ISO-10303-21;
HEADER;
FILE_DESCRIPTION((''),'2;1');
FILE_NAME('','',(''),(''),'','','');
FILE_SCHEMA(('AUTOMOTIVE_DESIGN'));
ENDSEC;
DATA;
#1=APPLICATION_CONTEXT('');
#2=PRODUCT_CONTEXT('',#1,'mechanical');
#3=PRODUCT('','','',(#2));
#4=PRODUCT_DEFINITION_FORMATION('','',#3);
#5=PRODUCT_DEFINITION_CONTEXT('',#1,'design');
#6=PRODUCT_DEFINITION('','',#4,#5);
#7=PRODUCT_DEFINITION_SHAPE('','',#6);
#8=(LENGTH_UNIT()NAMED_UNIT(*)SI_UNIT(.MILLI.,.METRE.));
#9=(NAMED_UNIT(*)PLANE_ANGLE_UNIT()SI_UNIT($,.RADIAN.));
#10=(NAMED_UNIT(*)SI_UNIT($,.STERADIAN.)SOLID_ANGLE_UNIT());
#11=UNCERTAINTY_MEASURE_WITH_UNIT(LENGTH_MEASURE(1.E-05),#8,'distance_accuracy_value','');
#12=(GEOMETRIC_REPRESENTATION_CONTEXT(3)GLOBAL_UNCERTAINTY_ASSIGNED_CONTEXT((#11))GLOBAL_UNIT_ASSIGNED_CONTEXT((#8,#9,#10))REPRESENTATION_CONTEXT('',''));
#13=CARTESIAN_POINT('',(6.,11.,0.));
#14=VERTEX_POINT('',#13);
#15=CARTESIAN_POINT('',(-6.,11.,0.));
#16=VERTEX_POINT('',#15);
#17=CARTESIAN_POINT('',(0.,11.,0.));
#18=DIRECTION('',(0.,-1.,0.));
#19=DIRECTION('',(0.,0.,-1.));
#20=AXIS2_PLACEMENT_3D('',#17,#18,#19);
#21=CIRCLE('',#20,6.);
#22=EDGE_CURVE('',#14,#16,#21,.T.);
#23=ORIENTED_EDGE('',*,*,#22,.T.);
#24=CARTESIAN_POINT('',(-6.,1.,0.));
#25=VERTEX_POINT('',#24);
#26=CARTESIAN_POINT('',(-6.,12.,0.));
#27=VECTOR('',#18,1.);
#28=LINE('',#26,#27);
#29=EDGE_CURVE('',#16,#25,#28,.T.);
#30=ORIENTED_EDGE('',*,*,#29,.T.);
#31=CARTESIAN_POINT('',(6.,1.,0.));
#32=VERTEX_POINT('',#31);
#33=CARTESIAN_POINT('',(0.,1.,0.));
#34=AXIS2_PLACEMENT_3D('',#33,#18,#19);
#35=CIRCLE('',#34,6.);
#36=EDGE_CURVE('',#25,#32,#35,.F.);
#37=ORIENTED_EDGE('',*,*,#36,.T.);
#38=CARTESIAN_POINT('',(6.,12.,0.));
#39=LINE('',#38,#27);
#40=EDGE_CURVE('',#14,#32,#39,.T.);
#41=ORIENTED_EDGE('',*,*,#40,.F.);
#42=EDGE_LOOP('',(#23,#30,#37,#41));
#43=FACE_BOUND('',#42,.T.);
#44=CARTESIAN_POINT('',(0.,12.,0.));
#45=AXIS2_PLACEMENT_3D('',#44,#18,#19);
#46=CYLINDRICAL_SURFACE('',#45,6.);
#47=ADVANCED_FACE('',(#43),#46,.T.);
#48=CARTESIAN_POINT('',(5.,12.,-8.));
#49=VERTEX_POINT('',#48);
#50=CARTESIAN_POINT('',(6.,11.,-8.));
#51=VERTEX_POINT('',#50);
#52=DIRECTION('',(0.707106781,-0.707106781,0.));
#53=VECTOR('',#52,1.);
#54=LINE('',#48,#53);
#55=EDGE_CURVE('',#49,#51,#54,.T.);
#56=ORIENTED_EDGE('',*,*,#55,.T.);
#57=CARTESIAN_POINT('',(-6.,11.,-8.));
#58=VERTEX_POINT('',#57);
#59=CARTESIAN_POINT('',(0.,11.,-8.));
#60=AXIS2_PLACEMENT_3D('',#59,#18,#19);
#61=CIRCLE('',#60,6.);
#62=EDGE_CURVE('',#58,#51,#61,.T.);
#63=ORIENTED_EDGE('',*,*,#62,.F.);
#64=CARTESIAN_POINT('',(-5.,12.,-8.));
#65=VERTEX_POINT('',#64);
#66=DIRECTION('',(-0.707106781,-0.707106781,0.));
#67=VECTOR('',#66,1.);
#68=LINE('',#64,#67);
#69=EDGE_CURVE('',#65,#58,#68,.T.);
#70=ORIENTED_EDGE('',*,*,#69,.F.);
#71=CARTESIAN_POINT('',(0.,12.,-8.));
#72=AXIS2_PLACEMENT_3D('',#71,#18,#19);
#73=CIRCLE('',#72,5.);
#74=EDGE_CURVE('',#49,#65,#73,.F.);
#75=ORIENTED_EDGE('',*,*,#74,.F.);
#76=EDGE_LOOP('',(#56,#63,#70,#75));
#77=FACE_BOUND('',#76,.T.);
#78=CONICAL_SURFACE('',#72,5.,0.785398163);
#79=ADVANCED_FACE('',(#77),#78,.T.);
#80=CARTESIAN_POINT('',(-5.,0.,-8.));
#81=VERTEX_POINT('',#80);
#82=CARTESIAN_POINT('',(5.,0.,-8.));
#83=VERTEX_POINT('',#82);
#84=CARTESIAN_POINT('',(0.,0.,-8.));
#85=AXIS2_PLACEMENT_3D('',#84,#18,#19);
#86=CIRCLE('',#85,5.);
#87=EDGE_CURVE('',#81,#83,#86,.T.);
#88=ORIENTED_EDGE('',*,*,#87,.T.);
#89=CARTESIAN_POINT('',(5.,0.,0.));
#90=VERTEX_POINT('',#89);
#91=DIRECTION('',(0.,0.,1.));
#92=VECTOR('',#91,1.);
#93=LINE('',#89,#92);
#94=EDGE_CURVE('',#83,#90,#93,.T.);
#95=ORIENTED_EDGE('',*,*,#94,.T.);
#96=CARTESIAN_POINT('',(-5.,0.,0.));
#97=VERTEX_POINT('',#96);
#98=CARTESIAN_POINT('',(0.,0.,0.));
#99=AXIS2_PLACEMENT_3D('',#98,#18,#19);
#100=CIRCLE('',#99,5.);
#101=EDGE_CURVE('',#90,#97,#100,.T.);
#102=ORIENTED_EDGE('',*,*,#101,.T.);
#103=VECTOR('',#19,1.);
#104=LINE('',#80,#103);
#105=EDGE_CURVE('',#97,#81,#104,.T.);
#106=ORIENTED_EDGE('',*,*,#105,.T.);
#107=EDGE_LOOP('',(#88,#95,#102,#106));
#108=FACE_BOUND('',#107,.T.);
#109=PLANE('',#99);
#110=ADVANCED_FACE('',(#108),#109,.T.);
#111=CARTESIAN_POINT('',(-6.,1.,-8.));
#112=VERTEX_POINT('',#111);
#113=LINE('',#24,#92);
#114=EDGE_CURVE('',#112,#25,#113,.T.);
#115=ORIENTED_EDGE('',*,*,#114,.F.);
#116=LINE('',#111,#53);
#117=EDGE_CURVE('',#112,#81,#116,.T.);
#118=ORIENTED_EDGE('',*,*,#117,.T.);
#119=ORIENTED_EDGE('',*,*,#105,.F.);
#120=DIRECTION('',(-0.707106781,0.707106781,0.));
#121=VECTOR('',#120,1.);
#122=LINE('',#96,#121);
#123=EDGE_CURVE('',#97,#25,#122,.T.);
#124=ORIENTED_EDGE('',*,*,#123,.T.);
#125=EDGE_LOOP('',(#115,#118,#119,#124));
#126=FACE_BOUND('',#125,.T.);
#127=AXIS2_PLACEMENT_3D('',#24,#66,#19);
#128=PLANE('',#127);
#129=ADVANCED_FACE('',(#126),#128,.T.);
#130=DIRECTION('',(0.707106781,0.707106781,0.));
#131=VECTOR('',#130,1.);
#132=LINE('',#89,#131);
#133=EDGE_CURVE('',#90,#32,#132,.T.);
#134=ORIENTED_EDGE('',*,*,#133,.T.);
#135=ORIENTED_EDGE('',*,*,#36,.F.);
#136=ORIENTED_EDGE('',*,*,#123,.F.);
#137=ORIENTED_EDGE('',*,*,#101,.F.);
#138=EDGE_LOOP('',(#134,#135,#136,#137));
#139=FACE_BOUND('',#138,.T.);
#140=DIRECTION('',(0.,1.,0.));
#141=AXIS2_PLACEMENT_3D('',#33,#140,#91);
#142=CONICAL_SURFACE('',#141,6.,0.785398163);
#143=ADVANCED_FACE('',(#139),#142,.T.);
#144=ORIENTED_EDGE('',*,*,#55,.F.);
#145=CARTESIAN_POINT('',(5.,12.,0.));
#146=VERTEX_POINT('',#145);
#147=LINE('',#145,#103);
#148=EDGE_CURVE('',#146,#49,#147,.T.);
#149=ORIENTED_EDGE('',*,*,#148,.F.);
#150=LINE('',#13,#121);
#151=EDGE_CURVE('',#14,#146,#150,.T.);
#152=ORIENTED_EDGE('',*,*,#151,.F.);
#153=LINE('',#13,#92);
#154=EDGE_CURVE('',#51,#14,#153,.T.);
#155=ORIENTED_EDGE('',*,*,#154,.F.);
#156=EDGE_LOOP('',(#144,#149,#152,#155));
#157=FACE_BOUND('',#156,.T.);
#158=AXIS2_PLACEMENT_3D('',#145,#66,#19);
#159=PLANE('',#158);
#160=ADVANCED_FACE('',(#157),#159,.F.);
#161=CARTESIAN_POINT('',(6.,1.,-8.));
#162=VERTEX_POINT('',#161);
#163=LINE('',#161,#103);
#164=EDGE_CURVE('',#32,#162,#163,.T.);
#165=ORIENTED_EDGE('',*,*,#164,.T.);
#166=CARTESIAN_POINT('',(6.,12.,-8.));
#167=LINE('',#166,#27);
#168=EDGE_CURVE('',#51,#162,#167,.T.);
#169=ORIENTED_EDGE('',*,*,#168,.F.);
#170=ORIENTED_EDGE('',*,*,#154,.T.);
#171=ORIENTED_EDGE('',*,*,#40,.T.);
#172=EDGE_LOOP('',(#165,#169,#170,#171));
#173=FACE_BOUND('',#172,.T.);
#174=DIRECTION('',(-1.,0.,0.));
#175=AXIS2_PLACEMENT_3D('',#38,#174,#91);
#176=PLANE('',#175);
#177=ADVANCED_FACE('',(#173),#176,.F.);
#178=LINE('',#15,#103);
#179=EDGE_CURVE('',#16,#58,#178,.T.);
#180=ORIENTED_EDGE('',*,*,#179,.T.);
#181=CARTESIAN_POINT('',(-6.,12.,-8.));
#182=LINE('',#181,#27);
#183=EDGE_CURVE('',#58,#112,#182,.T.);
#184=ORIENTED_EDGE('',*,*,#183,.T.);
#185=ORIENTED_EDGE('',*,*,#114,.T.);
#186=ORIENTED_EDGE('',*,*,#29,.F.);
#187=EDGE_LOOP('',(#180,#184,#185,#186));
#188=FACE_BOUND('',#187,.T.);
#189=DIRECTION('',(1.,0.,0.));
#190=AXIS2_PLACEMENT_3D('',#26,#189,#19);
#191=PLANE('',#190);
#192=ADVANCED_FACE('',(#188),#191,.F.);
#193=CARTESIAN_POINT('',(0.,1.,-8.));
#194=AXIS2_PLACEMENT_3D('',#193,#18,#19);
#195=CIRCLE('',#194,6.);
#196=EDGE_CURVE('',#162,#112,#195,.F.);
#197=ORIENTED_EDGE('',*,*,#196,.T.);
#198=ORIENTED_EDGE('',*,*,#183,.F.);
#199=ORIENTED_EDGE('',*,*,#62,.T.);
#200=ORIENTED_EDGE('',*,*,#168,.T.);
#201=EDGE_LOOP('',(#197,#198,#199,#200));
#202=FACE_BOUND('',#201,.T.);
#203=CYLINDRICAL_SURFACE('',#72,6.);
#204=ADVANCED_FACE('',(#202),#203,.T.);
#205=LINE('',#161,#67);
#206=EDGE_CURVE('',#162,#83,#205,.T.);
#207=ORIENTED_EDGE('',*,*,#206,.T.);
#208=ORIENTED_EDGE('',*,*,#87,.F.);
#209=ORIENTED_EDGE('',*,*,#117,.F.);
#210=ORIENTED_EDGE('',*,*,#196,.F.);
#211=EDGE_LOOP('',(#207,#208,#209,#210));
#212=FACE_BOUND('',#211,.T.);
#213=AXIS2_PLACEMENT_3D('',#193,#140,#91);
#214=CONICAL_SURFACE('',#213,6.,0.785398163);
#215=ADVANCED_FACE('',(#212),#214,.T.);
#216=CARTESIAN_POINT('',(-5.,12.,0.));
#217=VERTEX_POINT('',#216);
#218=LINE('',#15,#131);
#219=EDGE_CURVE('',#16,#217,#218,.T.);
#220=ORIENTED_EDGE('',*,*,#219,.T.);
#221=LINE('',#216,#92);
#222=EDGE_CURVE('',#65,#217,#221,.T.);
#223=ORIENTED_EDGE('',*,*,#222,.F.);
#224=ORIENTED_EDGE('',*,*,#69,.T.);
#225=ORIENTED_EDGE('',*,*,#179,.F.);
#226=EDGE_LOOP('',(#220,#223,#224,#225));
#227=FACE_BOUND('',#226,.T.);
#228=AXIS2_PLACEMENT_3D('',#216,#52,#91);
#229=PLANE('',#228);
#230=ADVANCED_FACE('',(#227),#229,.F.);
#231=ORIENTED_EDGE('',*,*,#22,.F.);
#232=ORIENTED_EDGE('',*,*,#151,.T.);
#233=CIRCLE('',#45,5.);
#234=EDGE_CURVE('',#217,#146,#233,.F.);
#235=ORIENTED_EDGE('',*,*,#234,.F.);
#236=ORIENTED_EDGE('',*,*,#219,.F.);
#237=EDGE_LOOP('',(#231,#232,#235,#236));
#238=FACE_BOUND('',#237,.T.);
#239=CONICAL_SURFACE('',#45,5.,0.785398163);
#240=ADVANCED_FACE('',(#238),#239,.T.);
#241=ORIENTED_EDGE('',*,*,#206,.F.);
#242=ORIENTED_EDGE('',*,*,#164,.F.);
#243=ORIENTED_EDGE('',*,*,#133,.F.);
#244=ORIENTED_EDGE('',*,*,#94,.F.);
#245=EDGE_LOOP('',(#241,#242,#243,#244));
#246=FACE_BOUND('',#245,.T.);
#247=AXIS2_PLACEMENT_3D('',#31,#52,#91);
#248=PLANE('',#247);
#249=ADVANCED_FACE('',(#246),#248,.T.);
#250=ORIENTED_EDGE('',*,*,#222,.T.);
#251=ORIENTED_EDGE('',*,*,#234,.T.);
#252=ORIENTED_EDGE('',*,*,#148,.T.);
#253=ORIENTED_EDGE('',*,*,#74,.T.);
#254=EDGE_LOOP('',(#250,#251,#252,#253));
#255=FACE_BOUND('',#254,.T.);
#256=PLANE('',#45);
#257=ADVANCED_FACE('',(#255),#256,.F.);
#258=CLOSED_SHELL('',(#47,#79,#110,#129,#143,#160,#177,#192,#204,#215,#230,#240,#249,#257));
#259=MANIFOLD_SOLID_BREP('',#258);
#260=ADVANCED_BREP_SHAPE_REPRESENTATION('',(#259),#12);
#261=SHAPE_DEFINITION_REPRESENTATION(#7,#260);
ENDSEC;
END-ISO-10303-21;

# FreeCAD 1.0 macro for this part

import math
import FreeCAD as App
import Part
import Sketcher
Q = App.Units.Quantity


def edges_at(feature, points):
    """Names of the edges that pass closest to the given points."""
    edges = feature.Shape.Edges
    near = lambda p: min(range(len(edges)), key=lambda i: edges[i].distToShape(Part.Vertex(*p))[0])
    return sorted({f"Edge{near(p) + 1}" for p in points})

doc = App.newDocument("Part")
body = doc.addObject("PartDesign::Body", "Body")

sketch1 = body.newObject("Sketcher::SketchObject", "Sketch")
sketch1.AttachmentSupport = (doc.getObject("XZ_Plane"), [""])
sketch1.MapMode = "FlatFace"
sketch1.addGeometry([
    Part.LineSegment(App.Vector(6, 0, 0), App.Vector(6, -8, 0)),
    Part.ArcOfCircle(Part.Circle(App.Vector(0, -8, 0), App.Vector(0, 0, 1), 6), math.radians(180), math.radians(360)),
    Part.LineSegment(App.Vector(-6, -8, 0), App.Vector(-6, 0, 0)),
    Part.ArcOfCircle(Part.Circle(App.Vector(0, 0, 0), App.Vector(0, 0, 1), 6), math.radians(0), math.radians(180)),
], False)
sketch1.addConstraint([
    Sketcher.Constraint("Tangent", 0, 2, 1, 2),
    Sketcher.Constraint("Tangent", 1, 1, 2, 1),
    Sketcher.Constraint("Tangent", 2, 2, 3, 2),
    Sketcher.Constraint("Tangent", 3, 1, 0, 1),
    Sketcher.Constraint("Vertical", 0),
    Sketcher.Constraint("Vertical", 2),
    Sketcher.Constraint("Coincident", 3, 3, -1, 1),
    Sketcher.Constraint("Radius", 1, Q("6 mm")),
    Sketcher.Constraint("DistanceY", 0, 2, 0, 1, Q("8 mm")),
])
pad1 = body.newObject("PartDesign::Pad", "Pad")
pad1.Profile = sketch1
pad1.Length = 12
pad1.Reversed = True
doc.recompute()

chamfer = body.newObject("PartDesign::Chamfer", "Chamfer")
chamfer.Base = (pad1, edges_at(pad1, [
    (0, 12, -14),
    (-6, 12, -4),
    (0, 12, 6),
    (-6, 0, -4),
    (0, 0, -14),
    (6, 0, -4),
    (0, 0, 6),
    (6, 12, -4),
]))
chamfer.Size = 1

doc.recompute()
